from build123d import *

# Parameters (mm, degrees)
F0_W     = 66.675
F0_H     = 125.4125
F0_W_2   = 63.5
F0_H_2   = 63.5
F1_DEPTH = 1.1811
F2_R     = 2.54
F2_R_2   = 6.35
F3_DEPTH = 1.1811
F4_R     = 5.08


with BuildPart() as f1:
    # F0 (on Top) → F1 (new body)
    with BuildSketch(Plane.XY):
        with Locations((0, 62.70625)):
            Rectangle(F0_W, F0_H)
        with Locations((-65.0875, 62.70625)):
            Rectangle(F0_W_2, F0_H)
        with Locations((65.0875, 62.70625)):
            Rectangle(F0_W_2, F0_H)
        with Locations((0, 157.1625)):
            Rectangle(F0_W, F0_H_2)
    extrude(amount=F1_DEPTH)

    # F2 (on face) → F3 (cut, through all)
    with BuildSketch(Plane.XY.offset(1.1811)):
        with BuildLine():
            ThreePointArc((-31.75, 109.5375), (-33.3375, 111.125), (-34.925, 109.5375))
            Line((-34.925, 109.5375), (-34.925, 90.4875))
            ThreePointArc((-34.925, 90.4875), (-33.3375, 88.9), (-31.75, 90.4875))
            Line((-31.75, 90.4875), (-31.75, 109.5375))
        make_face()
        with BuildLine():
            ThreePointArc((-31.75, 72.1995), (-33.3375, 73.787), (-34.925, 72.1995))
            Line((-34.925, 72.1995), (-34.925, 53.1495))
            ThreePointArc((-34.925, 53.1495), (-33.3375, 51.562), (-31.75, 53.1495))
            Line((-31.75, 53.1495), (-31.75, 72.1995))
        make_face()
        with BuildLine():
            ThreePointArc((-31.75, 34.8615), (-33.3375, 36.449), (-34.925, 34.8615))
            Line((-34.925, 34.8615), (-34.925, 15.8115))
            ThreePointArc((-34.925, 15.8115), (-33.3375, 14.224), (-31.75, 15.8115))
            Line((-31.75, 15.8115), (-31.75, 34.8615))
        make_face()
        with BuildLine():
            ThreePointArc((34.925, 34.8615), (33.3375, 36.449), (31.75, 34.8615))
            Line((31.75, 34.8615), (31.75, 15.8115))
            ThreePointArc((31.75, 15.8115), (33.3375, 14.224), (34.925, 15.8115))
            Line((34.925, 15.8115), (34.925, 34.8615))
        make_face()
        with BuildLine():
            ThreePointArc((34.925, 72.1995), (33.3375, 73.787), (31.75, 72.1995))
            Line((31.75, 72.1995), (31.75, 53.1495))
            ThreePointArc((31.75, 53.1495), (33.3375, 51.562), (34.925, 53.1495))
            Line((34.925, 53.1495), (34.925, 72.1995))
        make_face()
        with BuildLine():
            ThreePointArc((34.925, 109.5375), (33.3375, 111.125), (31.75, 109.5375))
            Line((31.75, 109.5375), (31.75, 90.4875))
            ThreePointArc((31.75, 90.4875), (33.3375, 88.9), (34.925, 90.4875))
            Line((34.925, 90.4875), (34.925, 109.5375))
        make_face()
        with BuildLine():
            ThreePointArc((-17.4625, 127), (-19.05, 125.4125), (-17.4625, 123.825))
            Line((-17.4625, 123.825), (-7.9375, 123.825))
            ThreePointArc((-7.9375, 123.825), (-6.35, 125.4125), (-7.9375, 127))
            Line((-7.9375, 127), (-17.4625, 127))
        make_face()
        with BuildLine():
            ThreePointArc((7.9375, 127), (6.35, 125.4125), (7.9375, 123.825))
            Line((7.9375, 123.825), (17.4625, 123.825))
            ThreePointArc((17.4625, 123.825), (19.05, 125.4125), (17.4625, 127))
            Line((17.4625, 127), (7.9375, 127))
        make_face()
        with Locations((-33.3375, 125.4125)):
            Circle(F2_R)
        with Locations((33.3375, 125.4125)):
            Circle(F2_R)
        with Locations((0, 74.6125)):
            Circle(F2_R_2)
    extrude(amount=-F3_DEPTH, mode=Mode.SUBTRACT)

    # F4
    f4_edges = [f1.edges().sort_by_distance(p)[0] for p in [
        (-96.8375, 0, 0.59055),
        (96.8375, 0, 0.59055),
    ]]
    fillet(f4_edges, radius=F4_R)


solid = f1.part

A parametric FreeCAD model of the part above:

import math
import FreeCAD as App
import Part
import Sketcher
Q = App.Units.Quantity


def edges_at(feature, points):
    """Names of the edges that pass closest to the given points."""
    edges = feature.Shape.Edges
    near = lambda p: min(range(len(edges)), key=lambda i: edges[i].distToShape(Part.Vertex(*p))[0])
    return sorted({f"Edge{near(p) + 1}" for p in points})

doc = App.newDocument("Part")
body = doc.addObject("PartDesign::Body", "Body")

sketch1 = body.newObject("Sketcher::SketchObject", "Sketch")
sketch1.AttachmentSupport = (doc.getObject("XY_Plane"), [""])
sketch1.MapMode = "FlatFace"
sketch1.addGeometry([
    Part.LineSegment(App.Vector(-97, 125, 0), App.Vector(-97, 0, 0)),
    Part.LineSegment(App.Vector(-97, 0, 0), App.Vector(97, 0, 0)),
    Part.LineSegment(App.Vector(97, 0, 0), App.Vector(97, 125, 0)),
    Part.LineSegment(App.Vector(97, 125, 0), App.Vector(33, 125, 0)),
    Part.LineSegment(App.Vector(33, 125, 0), App.Vector(33, 189, 0)),
    Part.LineSegment(App.Vector(33, 189, 0), App.Vector(-33, 189, 0)),
    Part.LineSegment(App.Vector(-33, 189, 0), App.Vector(-33, 125, 0)),
    Part.LineSegment(App.Vector(-33, 125, 0), App.Vector(-97, 125, 0)),
], False)
sketch1.addConstraint([
    Sketcher.Constraint("Coincident", 0, 2, 1, 1),
    Sketcher.Constraint("Coincident", 1, 2, 2, 1),
    Sketcher.Constraint("Coincident", 2, 2, 3, 1),
    Sketcher.Constraint("Coincident", 3, 2, 4, 1),
    Sketcher.Constraint("Coincident", 4, 2, 5, 1),
    Sketcher.Constraint("Coincident", 5, 2, 6, 1),
    Sketcher.Constraint("Coincident", 6, 2, 7, 1),
    Sketcher.Constraint("Coincident", 7, 2, 0, 1),
    Sketcher.Constraint("Vertical", 0),
    Sketcher.Constraint("Horizontal", 1),
    Sketcher.Constraint("Vertical", 2),
    Sketcher.Constraint("Horizontal", 3),
    Sketcher.Constraint("Vertical", 4),
    Sketcher.Constraint("Horizontal", 5),
    Sketcher.Constraint("Vertical", 6),
    Sketcher.Constraint("Horizontal", 7),
    Sketcher.Constraint("Symmetric", 0, 2, 1, 2, -1, 1),
    Sketcher.Constraint("Symmetric", 3, 2, 6, 2, -2),
    Sketcher.Constraint("Equal", 7, 4),
    Sketcher.Constraint("DistanceX", 3, 2, 3, 1, Q("2.5 in")),
    Sketcher.Constraint("DistanceX", 1, 1, 1, 2, Q("7.625 in")),
    Sketcher.Constraint("DistanceY", 0, 2, 0, 1, Q("4.9375 in")),
])
pad1 = body.newObject("PartDesign::Pad", "Pad")
pad1.Profile = sketch1
pad1.Length = Q("0.0465 in")

sketch2 = body.newObject("Sketcher::SketchObject", "Sketch001")
sketch2.AttachmentSupport = (doc.getObject("XY_Plane"), [""])
sketch2.MapMode = "FlatFace"
sketch2.AttachmentOffset = App.Placement(App.Vector(0, 0, 0.0465 * 25.4), App.Rotation())
sketch2.addGeometry([
    Part.ArcOfCircle(Part.Circle(App.Vector(-33.3, 109.5, 0), App.Vector(0, 0, 1), 1.6), math.radians(0), math.radians(180)),
    Part.LineSegment(App.Vector(-34.9, 109.5, 0), App.Vector(-34.9, 90.5, 0)),
    Part.ArcOfCircle(Part.Circle(App.Vector(-33.3, 90.5, 0), App.Vector(0, 0, 1), 1.6), math.radians(180), math.radians(360)),
    Part.LineSegment(App.Vector(-31.8, 90.5, 0), App.Vector(-31.8, 109.5, 0)),
    Part.ArcOfCircle(Part.Circle(App.Vector(-33.3, 72.2, 0), App.Vector(0, 0, 1), 1.6), math.radians(0), math.radians(180)),
    Part.LineSegment(App.Vector(-34.9, 72.2, 0), App.Vector(-34.9, 53.1, 0)),
    Part.ArcOfCircle(Part.Circle(App.Vector(-33.3, 53.1, 0), App.Vector(0, 0, 1), 1.6), math.radians(180), math.radians(360)),
    Part.LineSegment(App.Vector(-31.8, 53.1, 0), App.Vector(-31.8, 72.2, 0)),
    Part.ArcOfCircle(Part.Circle(App.Vector(-33.3, 34.9, 0), App.Vector(0, 0, 1), 1.6), math.radians(0), math.radians(180)),
    Part.LineSegment(App.Vector(-34.9, 34.9, 0), App.Vector(-34.9, 15.8, 0)),
    Part.ArcOfCircle(Part.Circle(App.Vector(-33.3, 15.8, 0), App.Vector(0, 0, 1), 1.6), math.radians(180), math.radians(360)),
    Part.LineSegment(App.Vector(-31.8, 15.8, 0), App.Vector(-31.8, 34.9, 0)),
    Part.ArcOfCircle(Part.Circle(App.Vector(33.3, 34.9, 0), App.Vector(0, 0, 1), 1.6), math.radians(0), math.radians(180)),
    Part.LineSegment(App.Vector(31.8, 34.9, 0), App.Vector(31.8, 15.8, 0)),
    Part.ArcOfCircle(Part.Circle(App.Vector(33.3, 15.8, 0), App.Vector(0, 0, 1), 1.6), math.radians(180), math.radians(360)),
    Part.LineSegment(App.Vector(34.9, 15.8, 0), App.Vector(34.9, 34.9, 0)),
    Part.ArcOfCircle(Part.Circle(App.Vector(33.3, 72.2, 0), App.Vector(0, 0, 1), 1.6), math.radians(0), math.radians(180)),
    Part.LineSegment(App.Vector(31.8, 72.2, 0), App.Vector(31.8, 53.1, 0)),
    Part.ArcOfCircle(Part.Circle(App.Vector(33.3, 53.1, 0), App.Vector(0, 0, 1), 1.6), math.radians(180), math.radians(360)),
    Part.LineSegment(App.Vector(34.9, 53.1, 0), App.Vector(34.9, 72.2, 0)),
    Part.ArcOfCircle(Part.Circle(App.Vector(33.3, 109.5, 0), App.Vector(0, 0, 1), 1.6), math.radians(0), math.radians(180)),
    Part.LineSegment(App.Vector(31.8, 109.5, 0), App.Vector(31.8, 90.5, 0)),
    Part.ArcOfCircle(Part.Circle(App.Vector(33.3, 90.5, 0), App.Vector(0, 0, 1), 1.6), math.radians(180), math.radians(360)),
    Part.LineSegment(App.Vector(34.9, 90.5, 0), App.Vector(34.9, 109.5, 0)),
    Part.ArcOfCircle(Part.Circle(App.Vector(-17.5, 125.4, 0), App.Vector(0, 0, 1), 1.6), math.radians(90), math.radians(270)),
    Part.LineSegment(App.Vector(-17.5, 123.8, 0), App.Vector(-7.9, 123.8, 0)),
    Part.ArcOfCircle(Part.Circle(App.Vector(-7.9, 125.4, 0), App.Vector(0, 0, 1), 1.6), math.radians(-90), math.radians(90)),
    Part.LineSegment(App.Vector(-7.9, 127, 0), App.Vector(-17.5, 127, 0)),
    Part.ArcOfCircle(Part.Circle(App.Vector(7.9, 125.4, 0), App.Vector(0, 0, 1), 1.6), math.radians(90), math.radians(270)),
    Part.LineSegment(App.Vector(7.9, 123.8, 0), App.Vector(17.5, 123.8, 0)),
    Part.ArcOfCircle(Part.Circle(App.Vector(17.5, 125.4, 0), App.Vector(0, 0, 1), 1.6), math.radians(-90), math.radians(90)),
    Part.LineSegment(App.Vector(17.5, 127, 0), App.Vector(7.9, 127, 0)),
    Part.Circle(App.Vector(-33.3, 125.4, 0), App.Vector(0, 0, 1), 2.5),
    Part.Circle(App.Vector(33.3, 125.4, 0), App.Vector(0, 0, 1), 2.5),
    Part.Circle(App.Vector(0, 74.6, 0), App.Vector(0, 0, 1), 6.3),
], False)
sketch2.addConstraint([
    Sketcher.Constraint("Tangent", 0, 2, 1, 1),
    Sketcher.Constraint("Tangent", 1, 2, 2, 1),
    Sketcher.Constraint("Tangent", 2, 2, 3, 1),
    Sketcher.Constraint("Tangent", 3, 2, 0, 1),
    Sketcher.Constraint("Tangent", 4, 2, 5, 1),
    Sketcher.Constraint("Tangent", 5, 2, 6, 1),
    Sketcher.Constraint("Tangent", 6, 2, 7, 1),
    Sketcher.Constraint("Tangent", 7, 2, 4, 1),
    Sketcher.Constraint("Tangent", 8, 2, 9, 1),
    Sketcher.Constraint("Tangent", 9, 2, 10, 1),
    Sketcher.Constraint("Tangent", 10, 2, 11, 1),
    Sketcher.Constraint("Tangent", 11, 2, 8, 1),
    Sketcher.Constraint("Tangent", 12, 2, 13, 1),
    Sketcher.Constraint("Tangent", 13, 2, 14, 1),
    Sketcher.Constraint("Tangent", 14, 2, 15, 1),
    Sketcher.Constraint("Tangent", 15, 2, 12, 1),
    Sketcher.Constraint("Tangent", 16, 2, 17, 1),
    Sketcher.Constraint("Tangent", 17, 2, 18, 1),
    Sketcher.Constraint("Tangent", 18, 2, 19, 1),
    Sketcher.Constraint("Tangent", 19, 2, 16, 1),
    Sketcher.Constraint("Tangent", 20, 2, 21, 1),
    Sketcher.Constraint("Tangent", 21, 2, 22, 1),
    Sketcher.Constraint("Tangent", 22, 2, 23, 1),
    Sketcher.Constraint("Tangent", 23, 2, 20, 1),
    Sketcher.Constraint("Tangent", 24, 2, 25, 1),
    Sketcher.Constraint("Tangent", 25, 2, 26, 1),
    Sketcher.Constraint("Tangent", 26, 2, 27, 1),
    Sketcher.Constraint("Tangent", 27, 2, 24, 1),
    Sketcher.Constraint("Tangent", 28, 2, 29, 1),
    Sketcher.Constraint("Tangent", 29, 2, 30, 1),
    Sketcher.Constraint("Tangent", 30, 2, 31, 1),
    Sketcher.Constraint("Tangent", 31, 2, 28, 1),
    Sketcher.Constraint("Vertical", 1),
    Sketcher.Constraint("Vertical", 3),
    Sketcher.Constraint("Vertical", 5),
    Sketcher.Constraint("Vertical", 7),
    Sketcher.Constraint("Vertical", 9),
    Sketcher.Constraint("Vertical", 11),
    Sketcher.Constraint("Vertical", 13),
    Sketcher.Constraint("Vertical", 15),
    Sketcher.Constraint("Vertical", 17),
    Sketcher.Constraint("Vertical", 19),
    Sketcher.Constraint("Vertical", 21),
    Sketcher.Constraint("Vertical", 23),
    Sketcher.Constraint("Horizontal", 25),
    Sketcher.Constraint("Horizontal", 27),
    Sketcher.Constraint("Horizontal", 29),
    Sketcher.Constraint("Horizontal", 31),
    Sketcher.Constraint("Equal", 2, 4),
    Sketcher.Constraint("Equal", 6, 8),
    Sketcher.Constraint("Equal", 10, 12),
    Sketcher.Constraint("Equal", 14, 16),
    Sketcher.Constraint("Equal", 18, 20),
    Sketcher.Constraint("Equal", 22, 24),
    Sketcher.Constraint("Equal", 26, 28),
    Sketcher.Constraint("Equal", 32, 33),
    Sketcher.Constraint("Symmetric", 8, 3, 12, 3, -2),
    Sketcher.Constraint("Symmetric", 4, 3, 16, 3, -2),
    Sketcher.Constraint("Symmetric", 0, 3, 20, 3, -2),
    Sketcher.Constraint("Symmetric", 26, 3, 28, 3, -2),
    Sketcher.Constraint("Symmetric", 32, 3, 33, 3, -2),
    Sketcher.Constraint("PointOnObject", 34, 3, -2),
    Sketcher.Constraint("Horizontal", 10, 3, 14, 3),
    Sketcher.Constraint("Horizontal", 6, 3, 18, 3),
    Sketcher.Constraint("Horizontal", 2, 3, 22, 3),
    Sketcher.Constraint("Horizontal", 30, 3, 32, 3),
    Sketcher.Constraint("Vertical", 2, 3, 4, 3),
    Sketcher.Constraint("Vertical", 6, 3, 8, 3),
    Sketcher.Constraint("Vertical", 10, 3, 32, 3),
    Sketcher.Constraint("Equal", 27, 29),
    Sketcher.Constraint("Equal", 3, 5),
    Sketcher.Constraint("Equal", 7, 9),
    Sketcher.Constraint("Diameter", 32, Q("0.2 in")),
    Sketcher.Constraint("Diameter", 34, Q("0.5 in")),
    Sketcher.Constraint("DistanceY", -1, 1, 26, 2, Q("5 in")),
    Sketcher.Constraint("Radius", 0, Q("0.0625 in")),
    Sketcher.Constraint("DistanceX", 24, 3, 20, 3, Q("2 in")),
    Sketcher.Constraint("DistanceX", 0, 3, 26, 3, Q("1 in")),
    Sketcher.Constraint("DistanceY", 1, 2, 1, 1, Q("0.75 in")),
    Sketcher.Constraint("DistanceX", 25, 1, 25, 2, Q("0.375 in")),
    Sketcher.Constraint("DistanceY", 4, 3, 2, 3, Q("0.72 in")),
    Sketcher.Constraint("DistanceY", 8, 3, 6, 3, Q("0.72 in")),
    Sketcher.Constraint("DistanceY", -1, 1, 0, 3, Q("4.3125 in")),
    Sketcher.Constraint("DistanceY", -1, 1, 34, 3, Q("2.9375 in")),
])
pocket1 = body.newObject("PartDesign::Pocket", "Pocket")
pocket1.Profile = sketch2
pocket1.Type = "ThroughAll"
doc.recompute()

fillet = body.newObject("PartDesign::Fillet", "Fillet")
fillet.Base = (pocket1, edges_at(pocket1, [(-96.838, 0, 0.591), (96.838, 0, 0.591)]))
fillet.Radius = Q("0.2 in")

doc.recompute()
